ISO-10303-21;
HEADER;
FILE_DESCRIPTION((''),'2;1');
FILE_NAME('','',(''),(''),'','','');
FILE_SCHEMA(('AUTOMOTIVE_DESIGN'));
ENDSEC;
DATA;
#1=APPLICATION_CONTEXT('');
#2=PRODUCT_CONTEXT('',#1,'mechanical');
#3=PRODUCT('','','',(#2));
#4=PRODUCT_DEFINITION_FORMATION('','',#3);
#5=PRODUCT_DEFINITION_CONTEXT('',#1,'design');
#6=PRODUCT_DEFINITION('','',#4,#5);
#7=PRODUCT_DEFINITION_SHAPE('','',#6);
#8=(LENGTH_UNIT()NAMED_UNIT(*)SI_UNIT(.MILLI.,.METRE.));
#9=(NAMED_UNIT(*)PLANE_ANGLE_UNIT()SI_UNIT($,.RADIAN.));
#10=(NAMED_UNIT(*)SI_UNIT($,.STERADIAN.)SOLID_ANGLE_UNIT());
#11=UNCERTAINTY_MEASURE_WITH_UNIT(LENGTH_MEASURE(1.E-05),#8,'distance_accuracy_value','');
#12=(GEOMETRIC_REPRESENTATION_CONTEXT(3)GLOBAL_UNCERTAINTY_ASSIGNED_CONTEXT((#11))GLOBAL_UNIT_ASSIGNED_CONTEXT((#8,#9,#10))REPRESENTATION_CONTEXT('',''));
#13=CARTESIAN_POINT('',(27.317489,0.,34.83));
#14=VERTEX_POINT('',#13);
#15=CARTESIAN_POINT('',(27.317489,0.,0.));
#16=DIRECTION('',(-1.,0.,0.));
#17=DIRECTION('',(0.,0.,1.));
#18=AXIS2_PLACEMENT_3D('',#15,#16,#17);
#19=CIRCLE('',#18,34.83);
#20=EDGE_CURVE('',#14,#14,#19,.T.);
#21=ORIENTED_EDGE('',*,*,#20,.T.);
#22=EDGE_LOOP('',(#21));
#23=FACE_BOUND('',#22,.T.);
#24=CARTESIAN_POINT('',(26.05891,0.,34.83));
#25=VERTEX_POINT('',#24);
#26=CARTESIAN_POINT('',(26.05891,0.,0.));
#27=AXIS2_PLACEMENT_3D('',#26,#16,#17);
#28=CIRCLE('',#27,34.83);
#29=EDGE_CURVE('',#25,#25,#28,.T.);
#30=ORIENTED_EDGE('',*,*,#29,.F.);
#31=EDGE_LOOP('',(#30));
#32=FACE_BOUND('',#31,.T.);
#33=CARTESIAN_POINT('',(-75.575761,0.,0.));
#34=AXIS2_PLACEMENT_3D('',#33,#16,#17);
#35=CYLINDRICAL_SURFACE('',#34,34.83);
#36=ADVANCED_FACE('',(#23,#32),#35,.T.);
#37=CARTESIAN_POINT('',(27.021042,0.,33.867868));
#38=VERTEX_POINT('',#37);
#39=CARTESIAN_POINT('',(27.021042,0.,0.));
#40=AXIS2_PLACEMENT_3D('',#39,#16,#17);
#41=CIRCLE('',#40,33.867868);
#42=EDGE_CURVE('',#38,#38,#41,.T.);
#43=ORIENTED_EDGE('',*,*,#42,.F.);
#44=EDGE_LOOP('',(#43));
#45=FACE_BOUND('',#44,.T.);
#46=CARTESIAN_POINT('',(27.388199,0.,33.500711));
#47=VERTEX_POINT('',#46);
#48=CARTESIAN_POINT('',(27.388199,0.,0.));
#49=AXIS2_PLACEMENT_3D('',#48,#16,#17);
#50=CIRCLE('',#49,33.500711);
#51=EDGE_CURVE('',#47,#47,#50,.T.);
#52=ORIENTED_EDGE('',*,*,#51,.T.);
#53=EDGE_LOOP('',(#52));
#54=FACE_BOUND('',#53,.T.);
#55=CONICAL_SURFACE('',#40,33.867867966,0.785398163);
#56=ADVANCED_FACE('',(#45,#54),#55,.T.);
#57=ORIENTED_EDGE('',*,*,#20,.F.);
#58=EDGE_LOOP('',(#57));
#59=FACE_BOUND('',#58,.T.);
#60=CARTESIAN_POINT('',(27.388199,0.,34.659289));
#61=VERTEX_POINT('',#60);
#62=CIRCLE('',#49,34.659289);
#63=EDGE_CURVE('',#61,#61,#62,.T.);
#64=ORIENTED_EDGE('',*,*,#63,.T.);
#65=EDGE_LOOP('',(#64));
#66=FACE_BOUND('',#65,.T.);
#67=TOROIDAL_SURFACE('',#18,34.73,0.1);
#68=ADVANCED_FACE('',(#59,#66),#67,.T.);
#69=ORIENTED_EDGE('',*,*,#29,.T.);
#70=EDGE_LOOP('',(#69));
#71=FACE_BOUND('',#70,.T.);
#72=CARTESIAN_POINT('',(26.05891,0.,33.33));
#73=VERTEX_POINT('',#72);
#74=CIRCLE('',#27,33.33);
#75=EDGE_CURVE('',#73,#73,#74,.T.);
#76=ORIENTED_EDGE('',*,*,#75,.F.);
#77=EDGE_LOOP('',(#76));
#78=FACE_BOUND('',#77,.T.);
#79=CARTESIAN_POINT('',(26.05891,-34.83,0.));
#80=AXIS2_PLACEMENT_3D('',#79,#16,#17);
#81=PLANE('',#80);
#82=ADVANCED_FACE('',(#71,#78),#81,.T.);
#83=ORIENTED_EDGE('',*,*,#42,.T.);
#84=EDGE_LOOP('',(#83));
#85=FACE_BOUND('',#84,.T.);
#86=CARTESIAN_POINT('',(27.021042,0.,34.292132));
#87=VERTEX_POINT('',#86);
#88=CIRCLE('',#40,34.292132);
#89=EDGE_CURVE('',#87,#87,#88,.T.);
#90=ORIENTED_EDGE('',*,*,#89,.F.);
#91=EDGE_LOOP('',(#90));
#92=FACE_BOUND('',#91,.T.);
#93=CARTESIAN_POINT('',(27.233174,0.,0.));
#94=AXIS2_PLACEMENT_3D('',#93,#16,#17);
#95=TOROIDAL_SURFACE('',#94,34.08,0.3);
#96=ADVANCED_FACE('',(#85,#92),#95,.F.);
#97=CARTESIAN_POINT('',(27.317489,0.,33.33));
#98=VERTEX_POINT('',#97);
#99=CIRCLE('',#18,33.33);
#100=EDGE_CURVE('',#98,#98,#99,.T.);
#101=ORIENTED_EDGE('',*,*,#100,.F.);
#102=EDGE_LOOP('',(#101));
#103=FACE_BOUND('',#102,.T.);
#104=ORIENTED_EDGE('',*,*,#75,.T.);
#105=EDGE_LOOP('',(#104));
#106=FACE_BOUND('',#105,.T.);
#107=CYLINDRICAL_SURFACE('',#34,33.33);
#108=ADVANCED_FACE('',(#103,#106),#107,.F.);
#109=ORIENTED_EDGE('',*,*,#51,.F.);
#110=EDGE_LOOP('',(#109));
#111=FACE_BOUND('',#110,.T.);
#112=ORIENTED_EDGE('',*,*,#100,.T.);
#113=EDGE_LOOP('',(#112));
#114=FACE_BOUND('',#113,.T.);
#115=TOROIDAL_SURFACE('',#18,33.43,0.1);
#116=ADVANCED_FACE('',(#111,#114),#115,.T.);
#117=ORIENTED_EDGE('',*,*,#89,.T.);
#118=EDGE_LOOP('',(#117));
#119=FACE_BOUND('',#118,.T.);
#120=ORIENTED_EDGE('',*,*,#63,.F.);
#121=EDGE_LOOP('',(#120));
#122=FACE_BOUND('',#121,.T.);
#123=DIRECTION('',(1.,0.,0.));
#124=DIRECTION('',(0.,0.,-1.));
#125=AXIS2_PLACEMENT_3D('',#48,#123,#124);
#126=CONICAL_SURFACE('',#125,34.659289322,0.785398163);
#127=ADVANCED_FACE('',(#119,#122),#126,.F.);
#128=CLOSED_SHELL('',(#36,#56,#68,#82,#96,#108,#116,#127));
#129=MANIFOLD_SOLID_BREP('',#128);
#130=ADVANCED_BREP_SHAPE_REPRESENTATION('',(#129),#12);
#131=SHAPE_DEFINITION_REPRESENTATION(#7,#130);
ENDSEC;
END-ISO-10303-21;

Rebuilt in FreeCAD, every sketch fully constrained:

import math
import FreeCAD as App
import Part
import Sketcher

V = App.Vector
Q = App.Units.Quantity

doc = App.newDocument("Part")
body = doc.addObject("PartDesign::Body", "Body")

# Sketch on XY plane
sketch1 = body.newObject("Sketcher::SketchObject", "Sketch")
sketch1.AttachmentSupport = (doc.getObject("XY_Plane"), [""])
sketch1.MapMode = "FlatFace"
sketch1.addGeometry(Part.LineSegment(V(27.317489, -33.33, 0), V(26.05891, -33.33, 0)), False)
sketch1.addGeometry(Part.LineSegment(V(26.05891, -33.33, 0), V(26.05891, -34.83, 0)), False)
sketch1.addGeometry(Part.LineSegment(V(26.05891, -34.83, 0), V(27.317489, -34.83, 0)), False)
sketch1.addGeometry(Part.ArcOfCircle(Part.Circle(V(27.317489, -34.73, 0), V(0, 0, 1), 0.1), math.radians(-90), math.radians(45)), False)
sketch1.addGeometry(Part.LineSegment(V(27.388199, -34.659289, 0), V(27.021042, -34.292132, 0)), False)
sketch1.addGeometry(Part.ArcOfCircle(Part.Circle(V(27.233174, -34.08, 0), V(0, 0, 1), 0.3), math.radians(135), math.radians(225)), False)
sketch1.addGeometry(Part.LineSegment(V(27.021042, -33.867868, 0), V(27.388199, -33.500711, 0)), False)
sketch1.addGeometry(Part.ArcOfCircle(Part.Circle(V(27.317489, -33.43, 0), V(0, 0, 1), 0.1), math.radians(-45), math.radians(90)), False)
sketch1.addConstraint(Sketcher.Constraint("Coincident", 0, 2, 1, 1))
sketch1.addConstraint(Sketcher.Constraint("Coincident", 1, 2, 2, 1))
sketch1.addConstraint(Sketcher.Constraint("Tangent", 2, 2, 3, 1))
sketch1.addConstraint(Sketcher.Constraint("Tangent", 3, 2, 4, 1))
sketch1.addConstraint(Sketcher.Constraint("Tangent", 4, 2, 5, 2))
sketch1.addConstraint(Sketcher.Constraint("Tangent", 5, 1, 6, 1))
sketch1.addConstraint(Sketcher.Constraint("Tangent", 6, 2, 7, 1))
sketch1.addConstraint(Sketcher.Constraint("Tangent", 7, 2, 0, 1))
sketch1.addConstraint(Sketcher.Constraint("Horizontal", 0))
sketch1.addConstraint(Sketcher.Constraint("Vertical", 1))
sketch1.addConstraint(Sketcher.Constraint("Horizontal", 2))
sketch1.addConstraint(Sketcher.Constraint("Equal", 3, 7))
sketch1.addConstraint(Sketcher.Constraint("Perpendicular", 4, 6))
sketch1.addConstraint(Sketcher.Constraint("Vertical", 3, 3, 7, 3))
sketch1.addConstraint(Sketcher.Constraint("Vertical", 4, 2, 5, 1))
sketch1.addConstraint(Sketcher.Constraint("Radius", 3, Q("0.1 mm")))
sketch1.addConstraint(Sketcher.Constraint("Radius", 5, Q("0.3 mm")))
sketch1.addConstraint(Sketcher.Constraint("DistanceY", 1, 2, 1, 1, Q("1.5 mm")))
sketch1.addConstraint(Sketcher.Constraint("DistanceY", 3, 3, -1, 1, Q("34.73 mm")))
sketch1.addConstraint(Sketcher.Constraint("DistanceX", 0, 2, 0, 1, Q("1.258579 mm")))
sketch1.addConstraint(Sketcher.Constraint("DistanceX", -1, 1, 3, 2, Q("27.388199 mm")))
revolution = body.newObject("PartDesign::Revolution", "Revolution")
revolution.Profile = sketch1
revolution.ReferenceAxis = (sketch1, ["H_Axis"])
revolution.Angle = 360

doc.recompute()
